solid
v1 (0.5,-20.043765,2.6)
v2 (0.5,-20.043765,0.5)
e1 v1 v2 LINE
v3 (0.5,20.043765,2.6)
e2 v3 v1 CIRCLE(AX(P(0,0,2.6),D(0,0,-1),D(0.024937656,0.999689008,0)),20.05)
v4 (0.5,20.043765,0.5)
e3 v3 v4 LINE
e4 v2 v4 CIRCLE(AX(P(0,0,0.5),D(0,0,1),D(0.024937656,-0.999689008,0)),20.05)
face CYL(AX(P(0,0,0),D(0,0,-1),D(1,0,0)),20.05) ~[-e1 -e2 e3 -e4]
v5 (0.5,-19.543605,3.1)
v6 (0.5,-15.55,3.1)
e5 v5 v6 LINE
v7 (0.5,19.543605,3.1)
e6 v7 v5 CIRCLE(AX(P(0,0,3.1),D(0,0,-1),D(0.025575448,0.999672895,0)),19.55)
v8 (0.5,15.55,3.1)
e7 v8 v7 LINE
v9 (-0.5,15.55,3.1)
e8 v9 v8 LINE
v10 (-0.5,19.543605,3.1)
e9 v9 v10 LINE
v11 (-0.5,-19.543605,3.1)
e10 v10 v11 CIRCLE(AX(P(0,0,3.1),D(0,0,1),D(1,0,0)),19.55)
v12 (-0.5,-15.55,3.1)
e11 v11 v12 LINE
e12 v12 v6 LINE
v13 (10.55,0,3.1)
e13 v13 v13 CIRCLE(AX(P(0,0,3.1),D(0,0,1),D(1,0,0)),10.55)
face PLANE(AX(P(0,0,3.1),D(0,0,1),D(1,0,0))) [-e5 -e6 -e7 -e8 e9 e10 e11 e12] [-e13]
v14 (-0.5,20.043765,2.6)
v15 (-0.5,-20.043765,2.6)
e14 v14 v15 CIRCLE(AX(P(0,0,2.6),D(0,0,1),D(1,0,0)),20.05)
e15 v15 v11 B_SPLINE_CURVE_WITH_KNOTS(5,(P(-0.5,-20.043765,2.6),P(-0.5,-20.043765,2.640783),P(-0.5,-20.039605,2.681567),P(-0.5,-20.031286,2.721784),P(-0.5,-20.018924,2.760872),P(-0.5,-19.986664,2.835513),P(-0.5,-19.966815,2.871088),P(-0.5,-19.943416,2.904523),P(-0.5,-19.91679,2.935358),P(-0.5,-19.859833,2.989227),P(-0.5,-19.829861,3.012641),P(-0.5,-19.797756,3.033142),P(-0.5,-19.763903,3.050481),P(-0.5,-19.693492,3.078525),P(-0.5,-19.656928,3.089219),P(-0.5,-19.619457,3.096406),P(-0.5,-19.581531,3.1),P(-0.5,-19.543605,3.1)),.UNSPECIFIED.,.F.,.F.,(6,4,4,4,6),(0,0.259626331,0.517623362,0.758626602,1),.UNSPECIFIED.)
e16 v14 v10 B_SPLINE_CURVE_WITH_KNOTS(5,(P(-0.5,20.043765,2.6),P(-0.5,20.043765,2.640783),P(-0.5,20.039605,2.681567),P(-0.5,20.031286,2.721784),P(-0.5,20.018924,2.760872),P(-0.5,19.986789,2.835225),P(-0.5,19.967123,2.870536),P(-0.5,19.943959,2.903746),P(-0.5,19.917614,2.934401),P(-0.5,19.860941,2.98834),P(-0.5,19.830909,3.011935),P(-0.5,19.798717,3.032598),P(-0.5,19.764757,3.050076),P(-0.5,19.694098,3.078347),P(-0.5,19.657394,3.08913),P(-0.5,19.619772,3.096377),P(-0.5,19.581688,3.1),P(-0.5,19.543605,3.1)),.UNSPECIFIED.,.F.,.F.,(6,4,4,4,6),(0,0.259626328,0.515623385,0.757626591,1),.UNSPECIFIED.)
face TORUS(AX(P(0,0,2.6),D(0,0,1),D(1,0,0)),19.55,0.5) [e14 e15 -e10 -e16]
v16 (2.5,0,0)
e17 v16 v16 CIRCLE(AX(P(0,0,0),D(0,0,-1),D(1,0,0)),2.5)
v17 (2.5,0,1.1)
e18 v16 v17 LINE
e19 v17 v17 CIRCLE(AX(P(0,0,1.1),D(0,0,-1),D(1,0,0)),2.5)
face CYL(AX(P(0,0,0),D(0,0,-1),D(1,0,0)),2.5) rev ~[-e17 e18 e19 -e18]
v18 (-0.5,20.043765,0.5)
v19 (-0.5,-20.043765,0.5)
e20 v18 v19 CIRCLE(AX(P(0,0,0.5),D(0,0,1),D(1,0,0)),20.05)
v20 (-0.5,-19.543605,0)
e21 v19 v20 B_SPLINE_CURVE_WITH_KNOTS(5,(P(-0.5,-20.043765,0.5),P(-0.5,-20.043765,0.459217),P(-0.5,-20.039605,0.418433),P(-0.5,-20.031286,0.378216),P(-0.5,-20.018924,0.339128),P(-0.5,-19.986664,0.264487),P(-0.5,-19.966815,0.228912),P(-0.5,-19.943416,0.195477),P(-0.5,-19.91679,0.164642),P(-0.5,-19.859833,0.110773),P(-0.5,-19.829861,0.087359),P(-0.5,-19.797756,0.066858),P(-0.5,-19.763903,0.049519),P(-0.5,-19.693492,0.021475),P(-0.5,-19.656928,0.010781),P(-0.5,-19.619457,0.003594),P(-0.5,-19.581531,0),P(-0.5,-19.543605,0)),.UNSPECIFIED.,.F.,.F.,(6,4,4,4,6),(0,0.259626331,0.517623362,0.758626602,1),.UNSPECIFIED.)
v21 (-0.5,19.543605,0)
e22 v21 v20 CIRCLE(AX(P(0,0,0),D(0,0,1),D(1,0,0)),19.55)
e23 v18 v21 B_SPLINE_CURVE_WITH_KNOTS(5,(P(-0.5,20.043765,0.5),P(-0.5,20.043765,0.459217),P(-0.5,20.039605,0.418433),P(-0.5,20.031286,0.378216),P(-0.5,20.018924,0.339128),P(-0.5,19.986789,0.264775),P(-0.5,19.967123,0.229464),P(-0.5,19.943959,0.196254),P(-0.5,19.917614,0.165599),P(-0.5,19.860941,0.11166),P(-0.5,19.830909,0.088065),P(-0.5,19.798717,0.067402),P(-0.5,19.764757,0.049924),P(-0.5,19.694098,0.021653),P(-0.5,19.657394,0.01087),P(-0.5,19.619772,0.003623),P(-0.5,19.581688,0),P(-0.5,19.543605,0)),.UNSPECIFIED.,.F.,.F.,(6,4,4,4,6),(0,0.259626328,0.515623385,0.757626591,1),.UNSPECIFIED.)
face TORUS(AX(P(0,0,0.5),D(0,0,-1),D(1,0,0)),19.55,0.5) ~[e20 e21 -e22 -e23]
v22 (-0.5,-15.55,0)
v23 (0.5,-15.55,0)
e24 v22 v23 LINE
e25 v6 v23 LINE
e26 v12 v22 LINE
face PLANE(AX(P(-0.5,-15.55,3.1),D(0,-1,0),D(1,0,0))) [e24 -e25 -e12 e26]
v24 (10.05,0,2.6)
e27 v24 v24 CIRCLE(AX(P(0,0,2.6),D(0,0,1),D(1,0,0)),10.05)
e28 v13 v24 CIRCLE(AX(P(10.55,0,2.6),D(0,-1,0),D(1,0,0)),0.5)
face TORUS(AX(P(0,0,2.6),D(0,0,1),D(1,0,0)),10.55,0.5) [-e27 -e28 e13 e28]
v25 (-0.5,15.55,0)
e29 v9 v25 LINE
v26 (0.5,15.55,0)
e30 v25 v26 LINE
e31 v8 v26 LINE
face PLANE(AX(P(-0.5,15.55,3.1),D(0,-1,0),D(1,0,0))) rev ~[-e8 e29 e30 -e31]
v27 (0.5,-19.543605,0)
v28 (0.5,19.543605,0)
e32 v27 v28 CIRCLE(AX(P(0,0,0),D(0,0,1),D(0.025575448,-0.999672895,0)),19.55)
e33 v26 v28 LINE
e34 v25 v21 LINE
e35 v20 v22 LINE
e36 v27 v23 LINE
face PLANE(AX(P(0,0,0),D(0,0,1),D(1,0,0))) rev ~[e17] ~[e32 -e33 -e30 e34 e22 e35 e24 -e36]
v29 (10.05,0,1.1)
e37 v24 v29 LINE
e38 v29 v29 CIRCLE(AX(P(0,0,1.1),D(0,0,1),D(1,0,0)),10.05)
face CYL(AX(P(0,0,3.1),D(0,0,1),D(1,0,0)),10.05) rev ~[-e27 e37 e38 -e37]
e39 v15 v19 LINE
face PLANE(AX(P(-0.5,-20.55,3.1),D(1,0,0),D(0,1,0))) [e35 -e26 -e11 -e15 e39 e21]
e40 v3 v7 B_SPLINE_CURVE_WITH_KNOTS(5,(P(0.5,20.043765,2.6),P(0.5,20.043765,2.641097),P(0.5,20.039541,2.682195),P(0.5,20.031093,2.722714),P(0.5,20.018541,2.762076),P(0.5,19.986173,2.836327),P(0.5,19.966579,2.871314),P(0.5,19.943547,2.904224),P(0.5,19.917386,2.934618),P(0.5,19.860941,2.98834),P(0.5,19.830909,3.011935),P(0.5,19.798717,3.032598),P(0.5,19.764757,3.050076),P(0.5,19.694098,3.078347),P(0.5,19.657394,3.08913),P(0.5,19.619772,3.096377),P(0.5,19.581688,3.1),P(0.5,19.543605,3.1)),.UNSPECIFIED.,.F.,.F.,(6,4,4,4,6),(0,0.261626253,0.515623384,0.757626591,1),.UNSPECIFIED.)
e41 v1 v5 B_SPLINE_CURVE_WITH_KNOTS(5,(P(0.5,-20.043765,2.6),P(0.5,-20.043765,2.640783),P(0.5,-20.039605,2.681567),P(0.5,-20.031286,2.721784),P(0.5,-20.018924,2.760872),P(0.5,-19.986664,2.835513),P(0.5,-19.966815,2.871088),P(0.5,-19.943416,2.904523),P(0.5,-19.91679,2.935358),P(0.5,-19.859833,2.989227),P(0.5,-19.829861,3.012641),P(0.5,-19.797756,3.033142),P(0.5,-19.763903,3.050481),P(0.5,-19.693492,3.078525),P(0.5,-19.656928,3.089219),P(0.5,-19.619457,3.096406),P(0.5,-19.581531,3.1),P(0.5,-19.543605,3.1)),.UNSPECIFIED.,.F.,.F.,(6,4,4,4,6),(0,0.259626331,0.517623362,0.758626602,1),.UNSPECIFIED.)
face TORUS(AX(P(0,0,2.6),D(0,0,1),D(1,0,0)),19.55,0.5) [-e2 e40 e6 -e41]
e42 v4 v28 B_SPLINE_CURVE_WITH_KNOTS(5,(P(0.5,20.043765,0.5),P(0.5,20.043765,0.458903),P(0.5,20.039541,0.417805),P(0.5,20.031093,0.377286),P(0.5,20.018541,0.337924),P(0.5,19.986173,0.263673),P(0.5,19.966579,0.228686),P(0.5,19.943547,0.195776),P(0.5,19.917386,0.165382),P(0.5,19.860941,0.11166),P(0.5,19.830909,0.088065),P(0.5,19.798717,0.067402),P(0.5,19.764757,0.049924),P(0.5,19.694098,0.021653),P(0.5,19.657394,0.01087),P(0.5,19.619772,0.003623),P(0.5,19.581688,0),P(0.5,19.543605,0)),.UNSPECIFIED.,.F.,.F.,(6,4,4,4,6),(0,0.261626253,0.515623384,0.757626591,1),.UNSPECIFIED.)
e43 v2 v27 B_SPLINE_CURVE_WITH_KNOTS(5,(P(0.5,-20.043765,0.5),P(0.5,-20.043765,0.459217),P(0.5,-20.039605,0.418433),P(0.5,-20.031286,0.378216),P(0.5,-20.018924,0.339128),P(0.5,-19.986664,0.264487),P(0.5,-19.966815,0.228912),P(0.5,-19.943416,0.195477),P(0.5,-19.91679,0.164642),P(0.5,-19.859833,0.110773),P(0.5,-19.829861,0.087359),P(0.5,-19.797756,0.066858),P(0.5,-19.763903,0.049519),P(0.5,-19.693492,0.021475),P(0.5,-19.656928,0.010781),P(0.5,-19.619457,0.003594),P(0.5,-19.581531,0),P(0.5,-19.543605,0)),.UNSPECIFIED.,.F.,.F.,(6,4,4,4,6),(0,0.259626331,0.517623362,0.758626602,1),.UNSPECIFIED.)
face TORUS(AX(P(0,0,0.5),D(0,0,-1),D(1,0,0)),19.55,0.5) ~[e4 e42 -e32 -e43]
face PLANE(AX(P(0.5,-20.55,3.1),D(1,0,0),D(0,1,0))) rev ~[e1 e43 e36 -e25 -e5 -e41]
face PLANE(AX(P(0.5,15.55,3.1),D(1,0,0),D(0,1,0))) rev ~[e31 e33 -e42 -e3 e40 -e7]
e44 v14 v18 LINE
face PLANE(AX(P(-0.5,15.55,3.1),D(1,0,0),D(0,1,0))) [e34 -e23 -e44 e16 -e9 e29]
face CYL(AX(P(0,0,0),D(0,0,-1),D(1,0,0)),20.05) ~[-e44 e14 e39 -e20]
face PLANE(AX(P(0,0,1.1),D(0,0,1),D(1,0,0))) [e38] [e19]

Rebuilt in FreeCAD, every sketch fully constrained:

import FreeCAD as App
import Part
import Sketcher


def edges_at(feature, points):
    """Names of the edges that pass closest to the given points."""
    edges = feature.Shape.Edges
    near = lambda p: min(range(len(edges)), key=lambda i: edges[i].distToShape(Part.Vertex(*p))[0])
    return sorted({f"Edge{near(p) + 1}" for p in points})


def add_polygon(sketch, points):
    """Adds a closed chain of lines whose ends are joined by coincident constraints."""
    first, n = sketch.GeometryCount, len(points)
    for a, b in zip(points, points[1:] + points[:1]):
        sketch.addGeometry(Part.LineSegment(App.Vector(*a, 0), App.Vector(*b, 0)), False)
    for i in range(n):
        sketch.addConstraint(Sketcher.Constraint("Coincident", first + i, 2, first + (i + 1) % n, 1))

doc = App.newDocument("Part")
body = doc.addObject("PartDesign::Body", "Body")

# Sketch on XY plane
sketch1 = body.newObject("Sketcher::SketchObject", "Sketch")
sketch1.AttachmentSupport = (doc.getObject("XY_Plane"), [""])
sketch1.MapMode = "FlatFace"
sketch1.addGeometry(Part.Circle(App.Vector(0, 0, 0), App.Vector(0, 0, 1), 20), False)
sketch1.addConstraint([
    Sketcher.Constraint("Coincident", 0, 3, -1, 1),
    Sketcher.Constraint("Diameter", 0, 40.1),
])
pad1 = body.newObject("PartDesign::Pad", "Pad")
pad1.Profile = sketch1
pad1.Length = 3.1

# Sketch on XY plane
sketch2 = body.newObject("Sketcher::SketchObject", "Sketch001")
sketch2.AttachmentSupport = (doc.getObject("XY_Plane"), [""])
sketch2.MapMode = "FlatFace"
sketch2.AttachmentOffset = App.Placement(App.Vector(0, 0, 3.1), App.Rotation())
sketch2.addGeometry(Part.Circle(App.Vector(0, 0, 0), App.Vector(0, 0, 1), 10), False)
sketch2.addConstraint([
    Sketcher.Constraint("Coincident", 0, 3, -1, 1),
    Sketcher.Constraint("Diameter", 0, 20.1),
])
pocket1 = body.newObject("PartDesign::Pocket", "Pocket")
pocket1.Profile = sketch2
pocket1.Length = 2
doc.recompute()

fillet = body.newObject("PartDesign::Fillet", "Fillet")
fillet.Base = (pocket1, edges_at(pocket1, [(-20.05, 0, 3.1), (-10.05, 0, 3.1), (-20.05, 0, 0)]))
fillet.Radius = 0.5

# Sketch on XY plane
sketch3 = body.newObject("Sketcher::SketchObject", "Sketch002")
sketch3.AttachmentSupport = (doc.getObject("XY_Plane"), [""])
sketch3.MapMode = "FlatFace"
sketch3.addGeometry(Part.Circle(App.Vector(0, 0, 0), App.Vector(0, 0, 1), 2.5), False)
sketch3.addConstraint([
    Sketcher.Constraint("Coincident", 0, 3, -1, 1),
    Sketcher.Constraint("Diameter", 0, 5.0),
])
pocket2 = body.newObject("PartDesign::Pocket", "Pocket001")
pocket2.Profile = sketch3
pocket2.Type = "ThroughAll"
pocket2.Reversed = True

# Sketch on XY plane
sketch4 = body.newObject("Sketcher::SketchObject", "Sketch003")
sketch4.AttachmentSupport = (doc.getObject("XY_Plane"), [""])
sketch4.MapMode = "FlatFace"
sketch4.AttachmentOffset = App.Placement(App.Vector(0, 0, 3.1), App.Rotation())
add_polygon(sketch4, [(-0.5, 20.6), (-0.5, 15.6), (0.5, 15.6), (0.5, 20.6)])  # lines 0-3
add_polygon(sketch4, [(-0.5, -15.6), (-0.5, -20.6), (0.5, -20.6), (0.5, -15.6)])  # lines 4-7
sketch4.addConstraint([
    Sketcher.Constraint("Vertical", 0),
    Sketcher.Constraint("Horizontal", 1),
    Sketcher.Constraint("Vertical", 2),
    Sketcher.Constraint("Horizontal", 3),
    Sketcher.Constraint("Vertical", 4),
    Sketcher.Constraint("Horizontal", 5),
    Sketcher.Constraint("Vertical", 6),
    Sketcher.Constraint("Horizontal", 7),
    Sketcher.Constraint("Symmetric", 2, 2, 4, 2, -1, 1),
    Sketcher.Constraint("Symmetric", 0, 2, 6, 2, -1, 1),
    Sketcher.Constraint("Vertical", 3, 2, 4, 2),
    Sketcher.Constraint("DistanceX", 1, 1, 1, 2, 1.0),
    Sketcher.Constraint("DistanceY", 0, 2, 0, 1, 5.0),
    Sketcher.Constraint("DistanceY", 4, 2, 0, 2, 36.1),
])
pocket3 = body.newObject("PartDesign::Pocket", "Pocket002")
pocket3.Profile = sketch4
pocket3.Type = "ThroughAll"

doc.recompute()
